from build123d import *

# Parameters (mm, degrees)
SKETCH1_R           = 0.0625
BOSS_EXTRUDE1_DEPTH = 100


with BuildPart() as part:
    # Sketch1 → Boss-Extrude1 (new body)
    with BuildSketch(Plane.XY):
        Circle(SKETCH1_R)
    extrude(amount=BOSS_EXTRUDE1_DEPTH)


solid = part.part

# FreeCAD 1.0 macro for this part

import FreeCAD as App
import Part
import Sketcher
Q = App.Units.Quantity

doc = App.newDocument("Part")
body = doc.addObject("PartDesign::Body", "Body")

sketch1 = body.newObject("Sketcher::SketchObject", "Sketch")
sketch1.AttachmentSupport = (doc.getObject("XY_Plane"), [""])
sketch1.MapMode = "FlatFace"
sketch1.addGeometry(Part.Circle(App.Vector(0, 0, 0), App.Vector(0, 0, 1), 0.0625), False)
sketch1.addConstraint(Sketcher.Constraint("Coincident", 0, 3, -1, 1))
sketch1.addConstraint(Sketcher.Constraint("Diameter", 0, Q("0.125 mm")))
pad1 = body.newObject("PartDesign::Pad", "Pad")
pad1.Profile = sketch1
pad1.Length = 100

doc.recompute()
